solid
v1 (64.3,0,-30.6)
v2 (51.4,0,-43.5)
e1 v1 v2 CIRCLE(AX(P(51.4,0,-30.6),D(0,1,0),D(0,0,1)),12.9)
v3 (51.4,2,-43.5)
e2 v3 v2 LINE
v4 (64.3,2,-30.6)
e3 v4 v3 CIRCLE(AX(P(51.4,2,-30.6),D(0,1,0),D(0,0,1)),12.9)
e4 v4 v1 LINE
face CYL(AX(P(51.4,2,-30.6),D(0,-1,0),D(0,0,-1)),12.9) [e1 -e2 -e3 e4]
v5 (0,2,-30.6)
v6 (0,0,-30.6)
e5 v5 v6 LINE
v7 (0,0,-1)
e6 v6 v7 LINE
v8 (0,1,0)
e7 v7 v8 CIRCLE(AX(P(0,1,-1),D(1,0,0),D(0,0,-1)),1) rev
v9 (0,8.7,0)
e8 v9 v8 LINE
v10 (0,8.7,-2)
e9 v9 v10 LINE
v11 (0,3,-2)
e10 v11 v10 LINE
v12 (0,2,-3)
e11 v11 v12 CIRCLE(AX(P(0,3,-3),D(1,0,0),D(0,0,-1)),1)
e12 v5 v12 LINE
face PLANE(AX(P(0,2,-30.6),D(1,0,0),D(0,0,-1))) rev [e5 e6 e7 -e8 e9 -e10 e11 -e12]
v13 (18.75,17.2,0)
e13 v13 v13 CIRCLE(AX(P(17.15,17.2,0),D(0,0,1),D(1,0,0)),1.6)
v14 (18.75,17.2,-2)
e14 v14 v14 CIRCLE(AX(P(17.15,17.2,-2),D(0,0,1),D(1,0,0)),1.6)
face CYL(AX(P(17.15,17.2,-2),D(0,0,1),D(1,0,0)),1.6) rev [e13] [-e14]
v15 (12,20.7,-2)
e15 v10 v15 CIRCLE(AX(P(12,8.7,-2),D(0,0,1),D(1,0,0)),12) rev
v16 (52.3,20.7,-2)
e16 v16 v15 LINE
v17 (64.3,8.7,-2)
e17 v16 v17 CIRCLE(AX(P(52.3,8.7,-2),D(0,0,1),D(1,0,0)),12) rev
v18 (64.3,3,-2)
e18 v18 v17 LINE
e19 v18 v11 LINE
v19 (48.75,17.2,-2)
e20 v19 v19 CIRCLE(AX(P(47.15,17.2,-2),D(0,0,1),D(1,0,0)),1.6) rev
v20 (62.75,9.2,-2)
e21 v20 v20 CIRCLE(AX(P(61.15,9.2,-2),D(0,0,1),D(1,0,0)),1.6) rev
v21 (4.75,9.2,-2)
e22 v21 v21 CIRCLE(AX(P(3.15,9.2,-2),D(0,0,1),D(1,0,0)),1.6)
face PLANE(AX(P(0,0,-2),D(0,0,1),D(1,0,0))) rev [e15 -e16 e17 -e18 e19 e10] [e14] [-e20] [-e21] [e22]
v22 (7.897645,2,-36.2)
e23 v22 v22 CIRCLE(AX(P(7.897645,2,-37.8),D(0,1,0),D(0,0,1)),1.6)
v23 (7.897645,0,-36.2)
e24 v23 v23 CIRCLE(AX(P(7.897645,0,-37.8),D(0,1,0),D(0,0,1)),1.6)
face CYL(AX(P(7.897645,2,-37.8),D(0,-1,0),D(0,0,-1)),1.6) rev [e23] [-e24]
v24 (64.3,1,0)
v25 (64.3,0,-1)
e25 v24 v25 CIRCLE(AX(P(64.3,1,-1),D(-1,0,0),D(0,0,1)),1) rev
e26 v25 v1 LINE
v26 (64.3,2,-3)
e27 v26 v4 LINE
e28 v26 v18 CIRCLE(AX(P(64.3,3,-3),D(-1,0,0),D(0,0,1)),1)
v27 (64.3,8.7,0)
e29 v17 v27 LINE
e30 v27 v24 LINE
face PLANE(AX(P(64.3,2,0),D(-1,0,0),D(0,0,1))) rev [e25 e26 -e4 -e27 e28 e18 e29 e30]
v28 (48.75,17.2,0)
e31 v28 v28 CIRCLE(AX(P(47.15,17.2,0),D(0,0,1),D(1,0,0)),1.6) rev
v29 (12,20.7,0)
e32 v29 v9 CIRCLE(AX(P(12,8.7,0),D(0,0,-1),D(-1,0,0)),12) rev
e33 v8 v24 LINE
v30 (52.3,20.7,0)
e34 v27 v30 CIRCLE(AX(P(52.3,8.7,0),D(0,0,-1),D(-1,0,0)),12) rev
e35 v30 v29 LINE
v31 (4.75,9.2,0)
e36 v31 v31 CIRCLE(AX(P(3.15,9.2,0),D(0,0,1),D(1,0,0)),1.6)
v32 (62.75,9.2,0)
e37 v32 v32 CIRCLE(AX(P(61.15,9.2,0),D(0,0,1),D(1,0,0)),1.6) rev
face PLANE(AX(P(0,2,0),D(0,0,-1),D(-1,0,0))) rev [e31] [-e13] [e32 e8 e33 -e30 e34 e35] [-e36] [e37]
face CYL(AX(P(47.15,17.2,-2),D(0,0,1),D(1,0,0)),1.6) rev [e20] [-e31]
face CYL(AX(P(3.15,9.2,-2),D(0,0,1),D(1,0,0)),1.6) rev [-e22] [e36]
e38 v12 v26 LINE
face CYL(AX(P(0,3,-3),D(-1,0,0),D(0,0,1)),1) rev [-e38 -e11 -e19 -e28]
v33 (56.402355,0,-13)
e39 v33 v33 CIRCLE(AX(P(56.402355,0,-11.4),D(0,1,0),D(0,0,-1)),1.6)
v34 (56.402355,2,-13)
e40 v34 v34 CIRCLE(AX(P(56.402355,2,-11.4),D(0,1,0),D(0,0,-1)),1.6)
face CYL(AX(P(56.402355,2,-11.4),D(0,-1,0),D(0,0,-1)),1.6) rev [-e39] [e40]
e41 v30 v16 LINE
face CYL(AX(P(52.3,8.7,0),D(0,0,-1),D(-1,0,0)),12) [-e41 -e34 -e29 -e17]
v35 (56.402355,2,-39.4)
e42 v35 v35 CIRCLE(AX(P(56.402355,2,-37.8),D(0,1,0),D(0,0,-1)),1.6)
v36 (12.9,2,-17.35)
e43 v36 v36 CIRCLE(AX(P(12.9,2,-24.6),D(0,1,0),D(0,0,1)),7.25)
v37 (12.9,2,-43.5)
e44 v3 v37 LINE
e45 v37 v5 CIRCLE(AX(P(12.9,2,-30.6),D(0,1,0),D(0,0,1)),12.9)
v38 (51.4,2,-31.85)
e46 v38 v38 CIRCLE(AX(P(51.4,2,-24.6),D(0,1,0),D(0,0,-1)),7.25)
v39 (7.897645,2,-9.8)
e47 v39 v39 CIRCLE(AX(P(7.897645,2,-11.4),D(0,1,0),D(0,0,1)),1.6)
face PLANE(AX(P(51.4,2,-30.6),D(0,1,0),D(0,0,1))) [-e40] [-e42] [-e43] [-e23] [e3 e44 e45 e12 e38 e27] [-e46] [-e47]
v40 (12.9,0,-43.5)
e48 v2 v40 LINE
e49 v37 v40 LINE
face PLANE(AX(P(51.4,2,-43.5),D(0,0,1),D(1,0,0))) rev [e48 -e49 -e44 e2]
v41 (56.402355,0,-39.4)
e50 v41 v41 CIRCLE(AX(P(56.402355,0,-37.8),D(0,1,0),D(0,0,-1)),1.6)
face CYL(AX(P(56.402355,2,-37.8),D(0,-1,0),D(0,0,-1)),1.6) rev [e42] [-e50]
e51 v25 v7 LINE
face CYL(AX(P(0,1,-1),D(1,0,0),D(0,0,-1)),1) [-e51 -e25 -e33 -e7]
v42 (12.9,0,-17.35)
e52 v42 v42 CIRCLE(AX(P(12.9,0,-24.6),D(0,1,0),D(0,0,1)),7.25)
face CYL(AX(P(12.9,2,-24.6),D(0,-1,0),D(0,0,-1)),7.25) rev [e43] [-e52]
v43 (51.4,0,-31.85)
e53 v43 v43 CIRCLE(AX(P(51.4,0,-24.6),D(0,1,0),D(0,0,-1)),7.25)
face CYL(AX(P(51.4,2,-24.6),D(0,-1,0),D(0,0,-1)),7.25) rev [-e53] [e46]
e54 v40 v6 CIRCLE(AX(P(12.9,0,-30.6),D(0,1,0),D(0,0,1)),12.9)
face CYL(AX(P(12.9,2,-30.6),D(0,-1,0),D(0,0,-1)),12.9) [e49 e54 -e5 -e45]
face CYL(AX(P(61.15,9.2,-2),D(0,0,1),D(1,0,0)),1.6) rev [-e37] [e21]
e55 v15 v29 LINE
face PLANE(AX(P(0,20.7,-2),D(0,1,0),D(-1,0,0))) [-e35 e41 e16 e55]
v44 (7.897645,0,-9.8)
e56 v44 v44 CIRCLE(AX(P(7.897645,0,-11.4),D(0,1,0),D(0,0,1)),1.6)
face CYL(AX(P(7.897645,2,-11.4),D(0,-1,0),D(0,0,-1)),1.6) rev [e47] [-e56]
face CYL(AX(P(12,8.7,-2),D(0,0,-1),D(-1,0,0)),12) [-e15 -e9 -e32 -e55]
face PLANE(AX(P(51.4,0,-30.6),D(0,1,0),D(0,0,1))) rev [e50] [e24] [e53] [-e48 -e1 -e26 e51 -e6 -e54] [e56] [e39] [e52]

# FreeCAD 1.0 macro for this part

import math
import FreeCAD as App
import Part
import Sketcher

V = App.Vector
Q = App.Units.Quantity


def edges_at(feature, points):
    """Names of the edges that pass closest to the given points."""
    edges = feature.Shape.Edges
    near = lambda p: min(range(len(edges)), key=lambda i: edges[i].distToShape(Part.Vertex(*p))[0])
    return sorted({f"Edge{near(p) + 1}" for p in points})


def add_polygon(sketch, points):
    """Adds a closed chain of lines whose ends are joined by coincident constraints."""
    first, n = sketch.GeometryCount, len(points)
    for a, b in zip(points, points[1:] + points[:1]):
        sketch.addGeometry(Part.LineSegment(App.Vector(*a, 0), App.Vector(*b, 0)), False)
    for i in range(n):
        sketch.addConstraint(Sketcher.Constraint("Coincident", first + i, 2, first + (i + 1) % n, 1))

doc = App.newDocument("Part")
body = doc.addObject("PartDesign::Body", "Body")

# Sketch on XZ plane
sketch1 = body.newObject("Sketcher::SketchObject", "Sketch")
sketch1.AttachmentSupport = (doc.getObject("XZ_Plane"), [""])
sketch1.MapMode = "FlatFace"
sketch1.addGeometry(Part.LineSegment(V(0, 0, 0), V(64.3, 0, 0)), False)
sketch1.addGeometry(Part.LineSegment(V(64.3, 0, 0), V(64.3, -30.6, 0)), False)
sketch1.addGeometry(Part.ArcOfCircle(Part.Circle(V(51.4, -30.6, 0), V(0, 0, 1), 12.9), math.radians(-90), math.radians(0)), False)
sketch1.addGeometry(Part.LineSegment(V(51.4, -43.5, 0), V(12.9, -43.5, 0)), False)
sketch1.addGeometry(Part.ArcOfCircle(Part.Circle(V(12.9, -30.6, 0), V(0, 0, 1), 12.9), math.radians(-180), math.radians(-90)), False)
sketch1.addGeometry(Part.LineSegment(V(0, -30.6, 0), V(0, 0, 0)), False)
sketch1.addGeometry(Part.Circle(V(7.9, -11.4, 0), V(0, 0, 1), 1.6), False)
sketch1.addGeometry(Part.Circle(V(56.4, -11.4, 0), V(0, 0, 1), 1.6), False)
sketch1.addGeometry(Part.Circle(V(12.9, -24.6, 0), V(0, 0, 1), 7.2), False)
sketch1.addGeometry(Part.Circle(V(7.9, -37.8, 0), V(0, 0, 1), 1.6), False)
sketch1.addGeometry(Part.Circle(V(51.4, -24.6, 0), V(0, 0, 1), 7.2), False)
sketch1.addGeometry(Part.Circle(V(56.4, -37.8, 0), V(0, 0, 1), 1.6), False)
sketch1.addConstraint(Sketcher.Constraint("Coincident", 0, 2, 1, 1))
sketch1.addConstraint(Sketcher.Constraint("Tangent", 1, 2, 2, 2))
sketch1.addConstraint(Sketcher.Constraint("Tangent", 2, 1, 3, 1))
sketch1.addConstraint(Sketcher.Constraint("Tangent", 3, 2, 4, 2))
sketch1.addConstraint(Sketcher.Constraint("Tangent", 4, 1, 5, 1))
sketch1.addConstraint(Sketcher.Constraint("Coincident", 5, 2, 0, 1))
sketch1.addConstraint(Sketcher.Constraint("Horizontal", 0))
sketch1.addConstraint(Sketcher.Constraint("Vertical", 1))
sketch1.addConstraint(Sketcher.Constraint("Horizontal", 3))
sketch1.addConstraint(Sketcher.Constraint("Vertical", 5))
sketch1.addConstraint(Sketcher.Constraint("Coincident", 5, 2, -1, 1))
sketch1.addConstraint(Sketcher.Constraint("Equal", 2, 4))
sketch1.addConstraint(Sketcher.Constraint("Equal", 6, 7))
sketch1.addConstraint(Sketcher.Constraint("Equal", 7, 9))
sketch1.addConstraint(Sketcher.Constraint("Equal", 8, 10))
sketch1.addConstraint(Sketcher.Constraint("Equal", 9, 11))
sketch1.addConstraint(Sketcher.Constraint("Horizontal", 6, 3, 7, 3))
sketch1.addConstraint(Sketcher.Constraint("Horizontal", 8, 3, 10, 3))
sketch1.addConstraint(Sketcher.Constraint("Horizontal", 9, 3, 11, 3))
sketch1.addConstraint(Sketcher.Constraint("Vertical", 4, 3, 8, 3))
sketch1.addConstraint(Sketcher.Constraint("Vertical", 6, 3, 9, 3))
sketch1.addConstraint(Sketcher.Constraint("Vertical", 2, 3, 10, 3))
sketch1.addConstraint(Sketcher.Constraint("Vertical", 7, 3, 11, 3))
sketch1.addConstraint(Sketcher.Constraint("Diameter", 6, Q("3.2 mm")))
sketch1.addConstraint(Sketcher.Constraint("Diameter", 8, Q("14.5 mm")))
sketch1.addConstraint(Sketcher.Constraint("Radius", 2, Q("12.9 mm")))
sketch1.addConstraint(Sketcher.Constraint("DistanceX", 0, 1, 0, 2, Q("64.3 mm")))
sketch1.addConstraint(Sketcher.Constraint("DistanceY", 1, 2, 1, 1, Q("30.6 mm")))
sketch1.addConstraint(Sketcher.Constraint("DistanceY", 4, 3, 8, 3, Q("6 mm")))
sketch1.addConstraint(Sketcher.Constraint("DistanceY", 6, 3, -1, 1, Q("11.4 mm")))
sketch1.addConstraint(Sketcher.Constraint("DistanceY", 9, 3, -1, 1, Q("37.8 mm")))
sketch1.addConstraint(Sketcher.Constraint("DistanceX", 6, 3, 7, 3, Q("48.50471 mm")))
sketch1.addConstraint(Sketcher.Constraint("DistanceX", -1, 1, 6, 3, Q("7.897645 mm")))
pad1 = body.newObject("PartDesign::Pad", "Pad")
pad1.Profile = sketch1
pad1.Length = 2
pad1.Reversed = True

# Sketch on XY plane
sketch2 = body.newObject("Sketcher::SketchObject", "Sketch001")
sketch2.AttachmentSupport = (doc.getObject("XY_Plane"), [""])
sketch2.MapMode = "FlatFace"
add_polygon(sketch2, [(0, 20.7), (0, 2), (64.3, 2), (64.3, 20.7)])  # lines 0-3
sketch2.addGeometry(Part.Circle(V(3.1, 9.2, 0), V(0, 0, 1), 1.6), False)  # 4
sketch2.addGeometry(Part.Circle(V(17.1, 17.2, 0), V(0, 0, 1), 1.6), False)  # 5
sketch2.addGeometry(Part.Circle(V(47.1, 17.2, 0), V(0, 0, 1), 1.6), False)  # 6
sketch2.addGeometry(Part.Circle(V(61.1, 9.2, 0), V(0, 0, 1), 1.6), False)  # 7
sketch2.addConstraint(Sketcher.Constraint("Vertical", 0))
sketch2.addConstraint(Sketcher.Constraint("Horizontal", 1))
sketch2.addConstraint(Sketcher.Constraint("Vertical", 2))
sketch2.addConstraint(Sketcher.Constraint("Horizontal", 3))
sketch2.addConstraint(Sketcher.Constraint("Equal", 4, 5))
sketch2.addConstraint(Sketcher.Constraint("Equal", 5, 6))
sketch2.addConstraint(Sketcher.Constraint("Equal", 6, 7))
sketch2.addConstraint(Sketcher.Constraint("PointOnObject", 0, 2, -2))
sketch2.addConstraint(Sketcher.Constraint("Horizontal", 5, 3, 6, 3))
sketch2.addConstraint(Sketcher.Constraint("Horizontal", 4, 3, 7, 3))
sketch2.addConstraint(Sketcher.Constraint("Diameter", 4, Q("3.2 mm")))
sketch2.addConstraint(Sketcher.Constraint("DistanceX", 1, 1, 1, 2, Q("64.3 mm")))
sketch2.addConstraint(Sketcher.Constraint("DistanceY", 0, 2, 0, 1, Q("18.7 mm")))
sketch2.addConstraint(Sketcher.Constraint("DistanceY", -1, 1, 0, 2, Q("2 mm")))
sketch2.addConstraint(Sketcher.Constraint("DistanceX", 4, 3, 5, 3, Q("14 mm")))
sketch2.addConstraint(Sketcher.Constraint("DistanceY", 4, 3, 5, 3, Q("8 mm")))
sketch2.addConstraint(Sketcher.Constraint("DistanceX", 5, 3, 6, 3, Q("30 mm")))
sketch2.addConstraint(Sketcher.Constraint("DistanceX", 6, 3, 7, 3, Q("14 mm")))
sketch2.addConstraint(Sketcher.Constraint("DistanceY", -1, 1, 4, 3, Q("9.2 mm")))
sketch2.addConstraint(Sketcher.Constraint("DistanceX", -1, 1, 4, 3, Q("3.15 mm")))
pad2 = body.newObject("PartDesign::Pad", "Pad001")
pad2.Profile = sketch2
pad2.Length = 2
pad2.Reversed = True
doc.recompute()

fillet = body.newObject("PartDesign::Fillet", "Fillet")
fillet.Base = (pad2, edges_at(pad2, [(0, 20.7, -1), (64.3, 20.7, -1)]))
fillet.Radius = 12
doc.recompute()

fillet2 = body.newObject("PartDesign::Fillet", "Fillet001")
fillet2.Base = (fillet, edges_at(fillet, [(32.15, 2, -2), (32.15, 0, 0)]))
fillet2.Radius = 1

doc.recompute()
